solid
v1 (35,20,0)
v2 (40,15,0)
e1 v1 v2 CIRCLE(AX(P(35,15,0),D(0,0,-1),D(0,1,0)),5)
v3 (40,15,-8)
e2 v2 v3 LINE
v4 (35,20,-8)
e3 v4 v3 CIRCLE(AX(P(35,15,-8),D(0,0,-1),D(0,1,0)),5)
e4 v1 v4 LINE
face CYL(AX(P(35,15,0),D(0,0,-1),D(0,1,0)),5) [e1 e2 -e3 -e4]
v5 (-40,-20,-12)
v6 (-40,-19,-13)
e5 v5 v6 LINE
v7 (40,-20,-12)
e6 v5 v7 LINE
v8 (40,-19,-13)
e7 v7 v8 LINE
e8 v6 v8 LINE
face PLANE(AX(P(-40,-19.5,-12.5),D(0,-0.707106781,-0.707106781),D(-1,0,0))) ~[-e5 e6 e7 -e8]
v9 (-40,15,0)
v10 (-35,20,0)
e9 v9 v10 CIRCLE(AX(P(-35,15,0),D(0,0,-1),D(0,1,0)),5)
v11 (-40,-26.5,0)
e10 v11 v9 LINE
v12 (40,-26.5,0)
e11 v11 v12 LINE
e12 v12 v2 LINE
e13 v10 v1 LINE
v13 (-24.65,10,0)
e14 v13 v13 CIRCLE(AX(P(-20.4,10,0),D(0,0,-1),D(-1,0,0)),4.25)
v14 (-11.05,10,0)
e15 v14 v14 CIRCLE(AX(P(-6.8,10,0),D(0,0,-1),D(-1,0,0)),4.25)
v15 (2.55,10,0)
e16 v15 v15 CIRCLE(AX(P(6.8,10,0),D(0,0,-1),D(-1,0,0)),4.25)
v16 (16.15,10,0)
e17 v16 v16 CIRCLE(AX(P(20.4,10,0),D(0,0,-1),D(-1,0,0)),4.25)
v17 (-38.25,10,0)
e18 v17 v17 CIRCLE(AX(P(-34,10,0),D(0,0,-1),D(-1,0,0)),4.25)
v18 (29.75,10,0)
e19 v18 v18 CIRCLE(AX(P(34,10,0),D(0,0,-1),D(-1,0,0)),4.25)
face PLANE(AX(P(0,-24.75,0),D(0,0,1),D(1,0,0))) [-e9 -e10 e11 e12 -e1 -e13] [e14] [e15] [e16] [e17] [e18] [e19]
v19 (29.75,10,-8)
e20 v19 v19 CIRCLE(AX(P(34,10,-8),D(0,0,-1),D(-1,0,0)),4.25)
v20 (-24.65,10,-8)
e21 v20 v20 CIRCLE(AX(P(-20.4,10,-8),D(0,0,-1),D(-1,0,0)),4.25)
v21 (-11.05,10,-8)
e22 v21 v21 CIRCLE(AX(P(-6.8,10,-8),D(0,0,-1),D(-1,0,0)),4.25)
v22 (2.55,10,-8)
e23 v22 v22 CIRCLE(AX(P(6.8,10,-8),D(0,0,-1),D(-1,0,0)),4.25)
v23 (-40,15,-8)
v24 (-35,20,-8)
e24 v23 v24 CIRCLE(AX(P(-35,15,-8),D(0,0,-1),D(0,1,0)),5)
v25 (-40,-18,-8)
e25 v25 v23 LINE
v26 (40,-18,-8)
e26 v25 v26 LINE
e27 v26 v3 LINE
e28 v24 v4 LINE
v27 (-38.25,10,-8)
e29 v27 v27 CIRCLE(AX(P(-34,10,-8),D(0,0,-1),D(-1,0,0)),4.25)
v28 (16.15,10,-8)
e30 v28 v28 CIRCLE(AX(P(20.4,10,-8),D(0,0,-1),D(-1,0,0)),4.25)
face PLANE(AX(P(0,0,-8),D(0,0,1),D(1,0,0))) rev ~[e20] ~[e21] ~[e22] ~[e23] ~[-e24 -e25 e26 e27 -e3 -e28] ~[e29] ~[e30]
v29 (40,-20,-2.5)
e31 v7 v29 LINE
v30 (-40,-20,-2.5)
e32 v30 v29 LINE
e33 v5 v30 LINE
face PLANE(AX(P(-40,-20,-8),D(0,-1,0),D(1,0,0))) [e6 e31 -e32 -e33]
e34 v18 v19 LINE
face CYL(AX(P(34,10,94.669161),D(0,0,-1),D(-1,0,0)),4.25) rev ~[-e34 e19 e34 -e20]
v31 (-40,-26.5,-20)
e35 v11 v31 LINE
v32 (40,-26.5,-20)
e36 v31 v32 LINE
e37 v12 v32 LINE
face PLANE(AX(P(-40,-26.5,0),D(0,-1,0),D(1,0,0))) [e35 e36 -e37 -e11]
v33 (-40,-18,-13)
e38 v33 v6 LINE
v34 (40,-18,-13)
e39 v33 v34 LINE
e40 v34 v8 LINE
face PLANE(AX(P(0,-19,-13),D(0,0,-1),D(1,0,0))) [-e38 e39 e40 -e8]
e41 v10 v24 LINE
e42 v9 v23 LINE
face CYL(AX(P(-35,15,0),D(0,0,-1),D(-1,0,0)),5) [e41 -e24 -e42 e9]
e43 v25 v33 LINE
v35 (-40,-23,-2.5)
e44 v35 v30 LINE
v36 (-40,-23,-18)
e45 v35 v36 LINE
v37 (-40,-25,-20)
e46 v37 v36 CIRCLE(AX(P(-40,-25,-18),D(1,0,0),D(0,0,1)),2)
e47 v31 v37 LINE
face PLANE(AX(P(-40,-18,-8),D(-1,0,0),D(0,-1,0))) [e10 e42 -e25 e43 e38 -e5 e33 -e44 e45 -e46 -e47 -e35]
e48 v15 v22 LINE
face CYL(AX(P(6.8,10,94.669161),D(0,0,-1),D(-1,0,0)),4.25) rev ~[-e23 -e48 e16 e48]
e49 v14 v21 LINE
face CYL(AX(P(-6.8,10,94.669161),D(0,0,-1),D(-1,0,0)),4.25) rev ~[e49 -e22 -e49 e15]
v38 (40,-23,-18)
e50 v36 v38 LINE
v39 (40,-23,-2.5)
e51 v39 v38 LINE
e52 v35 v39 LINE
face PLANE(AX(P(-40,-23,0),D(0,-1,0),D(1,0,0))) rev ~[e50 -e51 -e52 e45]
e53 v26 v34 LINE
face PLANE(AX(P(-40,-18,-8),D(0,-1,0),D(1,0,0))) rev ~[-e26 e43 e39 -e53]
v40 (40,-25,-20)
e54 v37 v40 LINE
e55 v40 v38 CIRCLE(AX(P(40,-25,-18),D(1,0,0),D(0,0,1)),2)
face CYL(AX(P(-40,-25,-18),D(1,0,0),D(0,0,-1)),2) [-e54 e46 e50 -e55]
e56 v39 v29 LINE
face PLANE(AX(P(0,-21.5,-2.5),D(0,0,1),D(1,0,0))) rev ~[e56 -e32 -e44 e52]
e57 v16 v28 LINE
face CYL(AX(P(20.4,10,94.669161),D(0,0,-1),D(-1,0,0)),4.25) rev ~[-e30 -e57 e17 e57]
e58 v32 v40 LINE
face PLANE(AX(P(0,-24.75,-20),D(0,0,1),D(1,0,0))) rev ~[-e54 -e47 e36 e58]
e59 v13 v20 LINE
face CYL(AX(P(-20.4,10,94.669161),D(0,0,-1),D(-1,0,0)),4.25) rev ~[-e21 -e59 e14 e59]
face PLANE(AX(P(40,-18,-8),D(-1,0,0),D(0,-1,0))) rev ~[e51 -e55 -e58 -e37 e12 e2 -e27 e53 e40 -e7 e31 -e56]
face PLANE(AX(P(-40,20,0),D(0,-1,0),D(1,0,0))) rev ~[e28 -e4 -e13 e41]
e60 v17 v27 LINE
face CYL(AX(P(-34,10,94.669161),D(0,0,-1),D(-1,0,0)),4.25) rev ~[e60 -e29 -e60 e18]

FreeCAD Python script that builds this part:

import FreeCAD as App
import Part
import Sketcher
from FreeCAD import Vector


def edges_at(feature, points):
    """Names of the edges that pass closest to the given points."""
    edges = feature.Shape.Edges
    near = lambda p: min(range(len(edges)), key=lambda i: edges[i].distToShape(Part.Vertex(*p))[0])
    return sorted({f"Edge{near(p) + 1}" for p in points})

doc = App.newDocument("Part")
body = doc.addObject("PartDesign::Body", "Body")

# Sketch on XY plane
sketch1 = body.newObject("Sketcher::SketchObject", "Sketch")
sketch1.AttachmentSupport = (doc.getObject("XY_Plane"), [""])
sketch1.MapMode = "FlatFace"
sketch1.addGeometry(Part.LineSegment(Vector(-40, 20, 0), Vector(-40, -20, 0)), False)
sketch1.addGeometry(Part.LineSegment(Vector(-40, -20, 0), Vector(40, -20, 0)), False)
sketch1.addGeometry(Part.LineSegment(Vector(40, -20, 0), Vector(40, 20, 0)), False)
sketch1.addGeometry(Part.LineSegment(Vector(40, 20, 0), Vector(-40, 20, 0)), False)
sketch1.addConstraint(Sketcher.Constraint("Coincident", 0, 2, 1, 1))
sketch1.addConstraint(Sketcher.Constraint("Coincident", 1, 2, 2, 1))
sketch1.addConstraint(Sketcher.Constraint("Coincident", 2, 2, 3, 1))
sketch1.addConstraint(Sketcher.Constraint("Coincident", 3, 2, 0, 1))
sketch1.addConstraint(Sketcher.Constraint("Vertical", 0))
sketch1.addConstraint(Sketcher.Constraint("Horizontal", 1))
sketch1.addConstraint(Sketcher.Constraint("Vertical", 2))
sketch1.addConstraint(Sketcher.Constraint("Horizontal", 3))
sketch1.addConstraint(Sketcher.Constraint("Symmetric", 0, 2, 2, 2, -1, 1))
sketch1.addConstraint(Sketcher.Constraint("DistanceX", 1, 1, 1, 2, 80.0))
sketch1.addConstraint(Sketcher.Constraint("DistanceY", 0, 2, 0, 1, 40.0))
pad1 = body.newObject("PartDesign::Pad", "Pad")
pad1.Profile = sketch1
pad1.Length = 8
pad1.Reversed = True

# Sketch on XY plane
sketch2 = body.newObject("Sketcher::SketchObject", "Sketch001")
sketch2.AttachmentSupport = (doc.getObject("XY_Plane"), [""])
sketch2.MapMode = "FlatFace"
sketch2.addGeometry(Part.LineSegment(Vector(-40, -20, 0), Vector(-40, -23, 0)), False)
sketch2.addGeometry(Part.LineSegment(Vector(-40, -23, 0), Vector(40, -23, 0)), False)
sketch2.addGeometry(Part.LineSegment(Vector(40, -23, 0), Vector(40, -20, 0)), False)
sketch2.addGeometry(Part.LineSegment(Vector(40, -20, 0), Vector(-40, -20, 0)), False)
sketch2.addConstraint(Sketcher.Constraint("Coincident", 0, 2, 1, 1))
sketch2.addConstraint(Sketcher.Constraint("Coincident", 1, 2, 2, 1))
sketch2.addConstraint(Sketcher.Constraint("Coincident", 2, 2, 3, 1))
sketch2.addConstraint(Sketcher.Constraint("Coincident", 3, 2, 0, 1))
sketch2.addConstraint(Sketcher.Constraint("Vertical", 0))
sketch2.addConstraint(Sketcher.Constraint("Horizontal", 1))
sketch2.addConstraint(Sketcher.Constraint("Vertical", 2))
sketch2.addConstraint(Sketcher.Constraint("Horizontal", 3))
sketch2.addConstraint(Sketcher.Constraint("DistanceX", 1, 1, 1, 2, 80.0))
sketch2.addConstraint(Sketcher.Constraint("DistanceY", 0, 2, 0, 1, 3.0))
sketch2.addConstraint(Sketcher.Constraint("DistanceX", 0, 2, -1, 1, 40.0))
sketch2.addConstraint(Sketcher.Constraint("DistanceY", 0, 2, -1, 1, 23.0))
pad2 = body.newObject("PartDesign::Pad", "Pad001")
pad2.Profile = sketch2
pad2.Length = 2.5
pad2.Reversed = True

# Sketch on XY plane
sketch3 = body.newObject("Sketcher::SketchObject", "Sketch002")
sketch3.AttachmentSupport = (doc.getObject("XY_Plane"), [""])
sketch3.MapMode = "FlatFace"
sketch3.addGeometry(Part.LineSegment(Vector(-40, -23, 0), Vector(-40, -26.5, 0)), False)
sketch3.addGeometry(Part.LineSegment(Vector(-40, -26.5, 0), Vector(40, -26.5, 0)), False)
sketch3.addGeometry(Part.LineSegment(Vector(40, -26.5, 0), Vector(40, -23, 0)), False)
sketch3.addGeometry(Part.LineSegment(Vector(40, -23, 0), Vector(-40, -23, 0)), False)
sketch3.addConstraint(Sketcher.Constraint("Coincident", 0, 2, 1, 1))
sketch3.addConstraint(Sketcher.Constraint("Coincident", 1, 2, 2, 1))
sketch3.addConstraint(Sketcher.Constraint("Coincident", 2, 2, 3, 1))
sketch3.addConstraint(Sketcher.Constraint("Coincident", 3, 2, 0, 1))
sketch3.addConstraint(Sketcher.Constraint("Vertical", 0))
sketch3.addConstraint(Sketcher.Constraint("Horizontal", 1))
sketch3.addConstraint(Sketcher.Constraint("Vertical", 2))
sketch3.addConstraint(Sketcher.Constraint("Horizontal", 3))
sketch3.addConstraint(Sketcher.Constraint("DistanceX", 1, 1, 1, 2, 80.0))
sketch3.addConstraint(Sketcher.Constraint("DistanceY", 0, 2, 0, 1, 3.5))
sketch3.addConstraint(Sketcher.Constraint("DistanceX", 0, 2, -1, 1, 40.0))
sketch3.addConstraint(Sketcher.Constraint("DistanceY", 2, 2, -1, 1, 23.0))
pad3 = body.newObject("PartDesign::Pad", "Pad002")
pad3.Profile = sketch3
pad3.Length = 20
pad3.Reversed = True

# Sketch on XY plane
sketch4 = body.newObject("Sketcher::SketchObject", "Sketch003")
sketch4.AttachmentSupport = (doc.getObject("XY_Plane"), [""])
sketch4.MapMode = "FlatFace"
sketch4.addGeometry(Part.Circle(Vector(-34, 10, 0), Vector(0, 0, 1), 4.2), False)
sketch4.addGeometry(Part.Circle(Vector(34, 10, 0), Vector(0, 0, 1), 4.2), False)
sketch4.addGeometry(Part.Circle(Vector(6.8, 10, 0), Vector(0, 0, 1), 4.2), False)
sketch4.addGeometry(Part.Circle(Vector(20.4, 10, 0), Vector(0, 0, 1), 4.2), False)
sketch4.addGeometry(Part.Circle(Vector(-20.4, 10, 0), Vector(0, 0, 1), 4.2), False)
sketch4.addGeometry(Part.Circle(Vector(-6.8, 10, 0), Vector(0, 0, 1), 4.2), False)
sketch4.addConstraint(Sketcher.Constraint("Equal", 0, 1))
sketch4.addConstraint(Sketcher.Constraint("Equal", 1, 2))
sketch4.addConstraint(Sketcher.Constraint("Equal", 2, 3))
sketch4.addConstraint(Sketcher.Constraint("Equal", 3, 4))
sketch4.addConstraint(Sketcher.Constraint("Equal", 4, 5))
sketch4.addConstraint(Sketcher.Constraint("Symmetric", 0, 3, 1, 3, -2))
sketch4.addConstraint(Sketcher.Constraint("Symmetric", 3, 3, 4, 3, -2))
sketch4.addConstraint(Sketcher.Constraint("Symmetric", 2, 3, 5, 3, -2))
sketch4.addConstraint(Sketcher.Constraint("Horizontal", 1, 3, 2, 3))
sketch4.addConstraint(Sketcher.Constraint("Horizontal", 2, 3, 3, 3))
sketch4.addConstraint(Sketcher.Constraint("Diameter", 0, 8.5))
sketch4.addConstraint(Sketcher.Constraint("DistanceX", 0, 3, -1, 1, 34.0))
sketch4.addConstraint(Sketcher.Constraint("DistanceY", -1, 1, 0, 3, 10.0))
sketch4.addConstraint(Sketcher.Constraint("DistanceX", -1, 1, 2, 3, 6.8))
sketch4.addConstraint(Sketcher.Constraint("DistanceX", -1, 1, 3, 3, 20.4))
doc.recompute()
hole = body.newObject("PartDesign::Hole", "Hole")
hole.Profile = sketch4
hole.ThreadType = "None"
hole.Diameter = 8.5
hole.DepthType = "ThroughAll"
doc.recompute()

fillet = body.newObject("PartDesign::Fillet", "Fillet")
fillet.Base = (hole, edges_at(hole, [(0, -23, -20)]))
fillet.Radius = 2
doc.recompute()

fillet2 = body.newObject("PartDesign::Fillet", "Fillet001")
fillet2.Base = (fillet, edges_at(fillet, [(40, 20, -4), (-40, 20, -4)]))
fillet2.Radius = 5

# Sketch on XY plane
sketch5 = body.newObject("Sketcher::SketchObject", "Sketch004")
sketch5.AttachmentSupport = (doc.getObject("XY_Plane"), [""])
sketch5.MapMode = "FlatFace"
sketch5.AttachmentOffset = App.Placement(Vector(0, 0, -8), App.Rotation())
sketch5.addGeometry(Part.LineSegment(Vector(-40, -20, 0), Vector(-40, -18, 0)), False)
sketch5.addGeometry(Part.LineSegment(Vector(-40, -18, 0), Vector(40, -18, 0)), False)
sketch5.addGeometry(Part.LineSegment(Vector(40, -18, 0), Vector(40, -20, 0)), False)
sketch5.addGeometry(Part.LineSegment(Vector(40, -20, 0), Vector(-40, -20, 0)), False)
sketch5.addConstraint(Sketcher.Constraint("Coincident", 0, 2, 1, 1))
sketch5.addConstraint(Sketcher.Constraint("Coincident", 1, 2, 2, 1))
sketch5.addConstraint(Sketcher.Constraint("Coincident", 2, 2, 3, 1))
sketch5.addConstraint(Sketcher.Constraint("Coincident", 3, 2, 0, 1))
sketch5.addConstraint(Sketcher.Constraint("Vertical", 0))
sketch5.addConstraint(Sketcher.Constraint("Horizontal", 1))
sketch5.addConstraint(Sketcher.Constraint("Vertical", 2))
sketch5.addConstraint(Sketcher.Constraint("Horizontal", 3))
sketch5.addConstraint(Sketcher.Constraint("DistanceX", 1, 1, 1, 2, 80.0))
sketch5.addConstraint(Sketcher.Constraint("DistanceY", 0, 1, 0, 2, 2.0))
sketch5.addConstraint(Sketcher.Constraint("DistanceX", 0, 2, -1, 1, 40.0))
sketch5.addConstraint(Sketcher.Constraint("DistanceY", 0, 2, -1, 1, 18.0))
pad4 = body.newObject("PartDesign::Pad", "Pad003")
pad4.Profile = sketch5
pad4.Length = 5
pad4.Reversed = True
doc.recompute()

chamfer = body.newObject("PartDesign::Chamfer", "Chamfer")
chamfer.Base = (pad4, edges_at(pad4, [(0, -20, -13)]))
chamfer.Size = 1

doc.recompute()
